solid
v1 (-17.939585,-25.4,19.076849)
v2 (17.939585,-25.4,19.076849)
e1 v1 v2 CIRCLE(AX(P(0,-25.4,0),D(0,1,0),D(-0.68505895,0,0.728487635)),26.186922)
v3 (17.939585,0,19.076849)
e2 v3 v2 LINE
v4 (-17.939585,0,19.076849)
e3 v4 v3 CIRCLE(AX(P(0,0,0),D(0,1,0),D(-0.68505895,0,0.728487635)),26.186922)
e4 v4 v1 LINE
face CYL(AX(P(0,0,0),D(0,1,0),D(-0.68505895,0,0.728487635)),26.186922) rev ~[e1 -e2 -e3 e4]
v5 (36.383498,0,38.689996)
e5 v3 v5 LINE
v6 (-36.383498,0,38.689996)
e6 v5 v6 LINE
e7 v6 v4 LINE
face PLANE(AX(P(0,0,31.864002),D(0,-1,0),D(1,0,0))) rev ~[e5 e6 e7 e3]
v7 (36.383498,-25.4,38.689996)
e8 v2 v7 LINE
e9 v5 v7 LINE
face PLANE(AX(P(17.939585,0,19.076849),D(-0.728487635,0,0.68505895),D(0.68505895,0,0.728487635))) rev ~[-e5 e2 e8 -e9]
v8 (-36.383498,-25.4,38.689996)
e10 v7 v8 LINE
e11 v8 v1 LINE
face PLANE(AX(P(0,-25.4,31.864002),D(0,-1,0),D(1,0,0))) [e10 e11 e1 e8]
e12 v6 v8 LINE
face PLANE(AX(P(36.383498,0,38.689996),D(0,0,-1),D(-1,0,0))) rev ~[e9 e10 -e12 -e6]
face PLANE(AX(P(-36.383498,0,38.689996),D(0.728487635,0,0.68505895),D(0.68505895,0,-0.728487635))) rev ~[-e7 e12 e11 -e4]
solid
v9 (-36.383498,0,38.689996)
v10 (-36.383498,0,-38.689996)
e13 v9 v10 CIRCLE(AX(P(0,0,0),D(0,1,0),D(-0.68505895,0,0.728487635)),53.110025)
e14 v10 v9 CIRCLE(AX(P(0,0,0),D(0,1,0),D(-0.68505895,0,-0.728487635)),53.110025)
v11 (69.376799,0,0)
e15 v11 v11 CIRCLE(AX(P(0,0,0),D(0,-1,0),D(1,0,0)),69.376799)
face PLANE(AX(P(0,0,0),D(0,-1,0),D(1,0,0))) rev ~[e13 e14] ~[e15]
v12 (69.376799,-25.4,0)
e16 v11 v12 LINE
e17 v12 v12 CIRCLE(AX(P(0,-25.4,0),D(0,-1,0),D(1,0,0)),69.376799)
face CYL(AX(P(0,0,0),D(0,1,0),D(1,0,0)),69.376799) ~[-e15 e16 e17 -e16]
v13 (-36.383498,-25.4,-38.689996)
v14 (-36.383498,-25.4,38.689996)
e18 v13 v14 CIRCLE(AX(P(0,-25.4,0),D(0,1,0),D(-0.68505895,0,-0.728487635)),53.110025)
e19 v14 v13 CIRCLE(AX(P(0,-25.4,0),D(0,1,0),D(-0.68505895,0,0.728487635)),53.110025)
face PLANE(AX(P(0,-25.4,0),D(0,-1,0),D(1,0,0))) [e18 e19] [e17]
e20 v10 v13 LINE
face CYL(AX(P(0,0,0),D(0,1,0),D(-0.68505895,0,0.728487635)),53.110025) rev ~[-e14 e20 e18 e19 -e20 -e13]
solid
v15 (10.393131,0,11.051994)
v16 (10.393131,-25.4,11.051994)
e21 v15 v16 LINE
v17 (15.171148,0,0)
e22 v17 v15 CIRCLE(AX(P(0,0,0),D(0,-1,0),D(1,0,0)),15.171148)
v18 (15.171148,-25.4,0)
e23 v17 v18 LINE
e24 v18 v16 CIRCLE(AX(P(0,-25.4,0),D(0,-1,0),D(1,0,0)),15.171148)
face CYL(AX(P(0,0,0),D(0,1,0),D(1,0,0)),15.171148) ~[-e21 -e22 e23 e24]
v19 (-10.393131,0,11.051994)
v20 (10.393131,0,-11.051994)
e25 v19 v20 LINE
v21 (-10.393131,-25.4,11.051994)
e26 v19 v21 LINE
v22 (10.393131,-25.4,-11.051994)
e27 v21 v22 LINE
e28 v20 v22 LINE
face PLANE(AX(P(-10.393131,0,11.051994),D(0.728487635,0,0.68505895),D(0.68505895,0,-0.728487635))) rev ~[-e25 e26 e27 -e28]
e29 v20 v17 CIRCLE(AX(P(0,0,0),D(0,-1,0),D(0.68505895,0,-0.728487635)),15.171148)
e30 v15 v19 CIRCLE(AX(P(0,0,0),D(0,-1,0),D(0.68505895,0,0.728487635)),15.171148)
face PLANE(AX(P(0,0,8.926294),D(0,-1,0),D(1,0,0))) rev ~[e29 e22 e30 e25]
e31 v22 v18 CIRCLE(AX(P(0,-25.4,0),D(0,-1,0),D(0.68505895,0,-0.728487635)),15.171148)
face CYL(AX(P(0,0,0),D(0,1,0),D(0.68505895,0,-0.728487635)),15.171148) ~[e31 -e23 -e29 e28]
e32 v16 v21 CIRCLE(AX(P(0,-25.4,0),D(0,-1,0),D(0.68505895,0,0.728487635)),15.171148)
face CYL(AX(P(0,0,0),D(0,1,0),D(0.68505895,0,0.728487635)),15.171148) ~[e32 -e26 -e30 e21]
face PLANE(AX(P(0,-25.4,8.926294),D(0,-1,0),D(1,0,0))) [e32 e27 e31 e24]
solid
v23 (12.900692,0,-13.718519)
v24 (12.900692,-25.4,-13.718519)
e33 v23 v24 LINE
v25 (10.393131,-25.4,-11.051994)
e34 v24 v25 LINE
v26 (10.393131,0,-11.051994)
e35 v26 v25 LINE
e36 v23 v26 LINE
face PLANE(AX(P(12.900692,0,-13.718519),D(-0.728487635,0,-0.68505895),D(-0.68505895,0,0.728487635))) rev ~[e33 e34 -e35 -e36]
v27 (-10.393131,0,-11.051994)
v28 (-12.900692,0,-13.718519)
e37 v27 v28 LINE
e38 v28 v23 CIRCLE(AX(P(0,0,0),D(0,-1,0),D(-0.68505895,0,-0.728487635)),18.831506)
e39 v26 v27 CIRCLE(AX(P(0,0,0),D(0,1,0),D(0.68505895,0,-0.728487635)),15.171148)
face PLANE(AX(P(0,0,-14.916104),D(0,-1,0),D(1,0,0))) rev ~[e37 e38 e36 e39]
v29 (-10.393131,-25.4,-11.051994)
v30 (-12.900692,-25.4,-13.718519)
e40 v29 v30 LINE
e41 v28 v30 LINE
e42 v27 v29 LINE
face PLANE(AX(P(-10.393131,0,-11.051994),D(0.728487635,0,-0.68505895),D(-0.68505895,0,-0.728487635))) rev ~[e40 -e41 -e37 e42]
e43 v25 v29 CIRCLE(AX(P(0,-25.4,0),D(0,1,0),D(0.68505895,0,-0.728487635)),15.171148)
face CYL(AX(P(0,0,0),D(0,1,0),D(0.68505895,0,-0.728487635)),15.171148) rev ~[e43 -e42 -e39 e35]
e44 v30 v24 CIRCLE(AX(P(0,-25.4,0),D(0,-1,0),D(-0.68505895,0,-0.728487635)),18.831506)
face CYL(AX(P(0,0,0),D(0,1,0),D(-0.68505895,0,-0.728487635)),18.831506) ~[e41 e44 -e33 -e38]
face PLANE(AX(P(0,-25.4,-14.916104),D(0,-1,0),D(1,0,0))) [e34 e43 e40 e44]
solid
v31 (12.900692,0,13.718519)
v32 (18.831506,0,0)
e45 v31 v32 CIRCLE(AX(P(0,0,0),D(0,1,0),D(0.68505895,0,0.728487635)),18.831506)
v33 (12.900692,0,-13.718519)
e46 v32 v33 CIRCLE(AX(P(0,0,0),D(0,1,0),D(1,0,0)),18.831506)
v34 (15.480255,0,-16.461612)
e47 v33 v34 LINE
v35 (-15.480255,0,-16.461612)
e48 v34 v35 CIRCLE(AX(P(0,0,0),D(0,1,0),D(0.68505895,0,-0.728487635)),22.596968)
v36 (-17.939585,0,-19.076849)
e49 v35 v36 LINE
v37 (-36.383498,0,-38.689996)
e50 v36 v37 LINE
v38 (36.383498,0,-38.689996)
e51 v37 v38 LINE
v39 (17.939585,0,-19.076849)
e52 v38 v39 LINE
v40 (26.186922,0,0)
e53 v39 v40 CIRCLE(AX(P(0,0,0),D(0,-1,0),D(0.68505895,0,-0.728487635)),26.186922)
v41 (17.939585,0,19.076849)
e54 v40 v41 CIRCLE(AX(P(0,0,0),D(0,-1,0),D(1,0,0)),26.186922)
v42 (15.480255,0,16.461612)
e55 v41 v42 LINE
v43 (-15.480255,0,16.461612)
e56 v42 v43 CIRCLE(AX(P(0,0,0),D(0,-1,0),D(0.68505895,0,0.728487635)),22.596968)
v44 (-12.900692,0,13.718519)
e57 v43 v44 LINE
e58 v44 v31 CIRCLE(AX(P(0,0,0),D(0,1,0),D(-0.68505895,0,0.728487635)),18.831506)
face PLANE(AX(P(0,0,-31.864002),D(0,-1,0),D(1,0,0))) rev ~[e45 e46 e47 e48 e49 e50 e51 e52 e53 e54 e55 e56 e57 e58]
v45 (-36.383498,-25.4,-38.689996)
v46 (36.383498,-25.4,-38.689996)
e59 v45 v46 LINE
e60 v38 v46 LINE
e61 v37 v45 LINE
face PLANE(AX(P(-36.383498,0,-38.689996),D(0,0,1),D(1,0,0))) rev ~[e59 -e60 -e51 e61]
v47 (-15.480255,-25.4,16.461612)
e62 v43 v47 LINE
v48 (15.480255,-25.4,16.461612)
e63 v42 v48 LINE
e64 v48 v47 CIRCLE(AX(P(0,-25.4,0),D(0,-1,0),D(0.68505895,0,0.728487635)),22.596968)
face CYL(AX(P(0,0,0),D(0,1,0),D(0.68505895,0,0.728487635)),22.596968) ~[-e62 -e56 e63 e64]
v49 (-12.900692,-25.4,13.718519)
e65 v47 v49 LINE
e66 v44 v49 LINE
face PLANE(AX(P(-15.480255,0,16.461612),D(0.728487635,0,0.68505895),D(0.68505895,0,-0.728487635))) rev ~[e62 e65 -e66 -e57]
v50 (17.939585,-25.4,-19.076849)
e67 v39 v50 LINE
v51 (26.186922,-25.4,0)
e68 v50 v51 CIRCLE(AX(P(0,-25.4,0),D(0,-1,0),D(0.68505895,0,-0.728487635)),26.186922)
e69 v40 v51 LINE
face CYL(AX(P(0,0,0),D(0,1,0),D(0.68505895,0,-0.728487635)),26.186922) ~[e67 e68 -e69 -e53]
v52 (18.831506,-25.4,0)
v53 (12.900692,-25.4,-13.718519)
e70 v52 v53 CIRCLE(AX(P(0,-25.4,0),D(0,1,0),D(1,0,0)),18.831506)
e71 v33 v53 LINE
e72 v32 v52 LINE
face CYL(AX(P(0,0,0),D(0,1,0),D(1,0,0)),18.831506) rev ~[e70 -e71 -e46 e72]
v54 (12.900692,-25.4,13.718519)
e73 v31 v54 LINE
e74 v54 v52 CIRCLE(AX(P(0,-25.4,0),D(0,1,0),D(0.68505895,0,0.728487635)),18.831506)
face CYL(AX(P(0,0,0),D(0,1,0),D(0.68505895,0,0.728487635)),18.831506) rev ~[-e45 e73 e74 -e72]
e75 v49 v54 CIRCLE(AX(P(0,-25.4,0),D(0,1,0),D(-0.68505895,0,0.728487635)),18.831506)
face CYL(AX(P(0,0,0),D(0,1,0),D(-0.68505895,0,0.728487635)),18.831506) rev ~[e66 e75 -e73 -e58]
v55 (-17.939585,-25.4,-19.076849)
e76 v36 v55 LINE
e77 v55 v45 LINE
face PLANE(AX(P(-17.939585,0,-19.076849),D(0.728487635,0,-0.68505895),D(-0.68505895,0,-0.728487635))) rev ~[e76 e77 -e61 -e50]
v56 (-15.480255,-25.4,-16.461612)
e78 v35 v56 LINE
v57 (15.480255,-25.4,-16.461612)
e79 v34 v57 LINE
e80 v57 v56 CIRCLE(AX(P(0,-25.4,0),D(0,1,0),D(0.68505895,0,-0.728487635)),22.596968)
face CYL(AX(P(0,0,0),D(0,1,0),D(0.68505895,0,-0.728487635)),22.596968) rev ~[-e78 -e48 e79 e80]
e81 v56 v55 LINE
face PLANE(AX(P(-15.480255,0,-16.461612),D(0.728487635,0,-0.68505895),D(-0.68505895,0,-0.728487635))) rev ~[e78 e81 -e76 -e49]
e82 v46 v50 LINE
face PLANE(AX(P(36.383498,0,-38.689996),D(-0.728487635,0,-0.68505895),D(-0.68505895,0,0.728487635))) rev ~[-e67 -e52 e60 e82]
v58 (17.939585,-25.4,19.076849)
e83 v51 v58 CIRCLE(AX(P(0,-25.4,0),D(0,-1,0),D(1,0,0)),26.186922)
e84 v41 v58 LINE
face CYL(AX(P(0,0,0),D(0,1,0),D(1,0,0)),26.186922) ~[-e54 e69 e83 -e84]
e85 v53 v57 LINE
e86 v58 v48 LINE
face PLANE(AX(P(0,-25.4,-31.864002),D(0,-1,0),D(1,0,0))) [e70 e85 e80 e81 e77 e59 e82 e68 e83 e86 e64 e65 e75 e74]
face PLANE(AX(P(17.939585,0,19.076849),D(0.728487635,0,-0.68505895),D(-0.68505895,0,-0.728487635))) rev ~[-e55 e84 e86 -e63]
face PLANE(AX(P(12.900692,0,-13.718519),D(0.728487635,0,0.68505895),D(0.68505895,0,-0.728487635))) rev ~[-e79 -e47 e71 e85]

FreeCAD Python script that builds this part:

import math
import FreeCAD as App
import Part
import Sketcher
from FreeCAD import Vector
Q = App.Units.Quantity

doc = App.newDocument("Part")
body = doc.addObject("PartDesign::Body", "Body")

# Sketch on XZ plane
sketch1 = doc.addObject("Sketcher::SketchObject", "Sketch")
body.addObject(sketch1)
sketch1.AttachmentSupport = (doc.XZ_Plane, [""])
sketch1.MapMode = "FlatFace"
sketch1.addGeometry([
    Part.Circle(Vector(0, 0, 0), Vector(0, 0, 1), 69),
    Part.ArcOfCircle(Part.Circle(Vector(0, 0, 0), Vector(0, 0, 1), 53), math.radians(-133), math.radians(133)),
    Part.ArcOfCircle(Part.Circle(Vector(0, 0, 0), Vector(0, 0, 1), 53), math.radians(133), math.radians(227)),
], False)
sketch1.addConstraint([
    Sketcher.Constraint("Tangent", 1, 1, 2, 2),
    Sketcher.Constraint("Coincident", 2, 1, 1, 2),
    Sketcher.Constraint("Coincident", 0, 3, -1, 1),
    Sketcher.Constraint("Coincident", 1, 3, -1, 1),
    Sketcher.Constraint("Vertical", 1, 1, 2, 1),
    Sketcher.Constraint("Diameter", 0, Q("138.753599 mm")),
    Sketcher.Constraint("Radius", 1, Q("53.110025 mm")),
    Sketcher.Constraint("DistanceX", 1, 1, -1, 1, Q("36.383498 mm")),
])
pad1 = doc.addObject("PartDesign::Pad", "Pad")
body.addObject(pad1)
pad1.Profile = sketch1
pad1.Length = Q("1 in")
body2 = doc.addObject("PartDesign::Body", "Body001")

# Sketch on XZ plane
sketch2 = doc.addObject("Sketcher::SketchObject", "Sketch001")
body2.addObject(sketch2)
sketch2.AttachmentSupport = (doc.getObject("XZ_Plane001"), [""])
sketch2.MapMode = "FlatFace"
sketch2.addGeometry([
    Part.LineSegment(Vector(-36.4, -38.7, 0), Vector(36.4, -38.7, 0)),  # 0
    Part.LineSegment(Vector(36.4, -38.7, 0), Vector(17.9, -19.1, 0)),  # 1
    Part.ArcOfCircle(Part.Circle(Vector(0, 0, 0), Vector(0, 0, 1), 26.2), math.radians(-47), math.radians(0)),  # 2
    Part.ArcOfCircle(Part.Circle(Vector(0, 0, 0), Vector(0, 0, 1), 26.2), math.radians(0), math.radians(47)),  # 3
    Part.LineSegment(Vector(17.9, 19.1, 0), Vector(15.5, 16.5, 0)),  # 4
    Part.ArcOfCircle(Part.Circle(Vector(0, 0, 0), Vector(0, 0, 1), 22.6), math.radians(47), math.radians(133)),  # 5
    Part.LineSegment(Vector(-15.5, 16.5, 0), Vector(-12.9, 13.7, 0)),  # 6
    Part.ArcOfCircle(Part.Circle(Vector(0, 0, 0), Vector(0, 0, 1), 18.8), math.radians(47), math.radians(133)),  # 7
    Part.ArcOfCircle(Part.Circle(Vector(0, 0, 0), Vector(0, 0, 1), 18.8), math.radians(0), math.radians(47)),  # 8
    Part.ArcOfCircle(Part.Circle(Vector(0, 0, 0), Vector(0, 0, 1), 18.8), math.radians(-47), math.radians(0)),  # 9
    Part.LineSegment(Vector(12.9, -13.7, 0), Vector(15.5, -16.5, 0)),  # 10
    Part.ArcOfCircle(Part.Circle(Vector(0, 0, 0), Vector(0, 0, 1), 22.6), math.radians(-133), math.radians(-47)),  # 11
    Part.LineSegment(Vector(-15.5, -16.5, 0), Vector(-17.9, -19.1, 0)),  # 12
    Part.LineSegment(Vector(-17.9, -19.1, 0), Vector(-36.4, -38.7, 0)),  # 13
], False)
sketch2.addConstraint([
    Sketcher.Constraint("Coincident", 0, 2, 1, 1),
    Sketcher.Constraint("Coincident", 1, 2, 2, 1),
    Sketcher.Constraint("Tangent", 2, 2, 3, 1),
    Sketcher.Constraint("Coincident", 3, 2, 4, 1),
    Sketcher.Constraint("Coincident", 4, 2, 5, 1),
    Sketcher.Constraint("Coincident", 5, 2, 6, 1),
    Sketcher.Constraint("Coincident", 6, 2, 7, 2),
    Sketcher.Constraint("Tangent", 7, 1, 8, 2),
    Sketcher.Constraint("Tangent", 8, 1, 9, 2),
    Sketcher.Constraint("Coincident", 9, 1, 10, 1),
    Sketcher.Constraint("Coincident", 10, 2, 11, 2),
    Sketcher.Constraint("Coincident", 11, 1, 12, 1),
    Sketcher.Constraint("Coincident", 12, 2, 13, 1),
    Sketcher.Constraint("Coincident", 13, 2, 0, 1),
    Sketcher.Constraint("Horizontal", 0),
    Sketcher.Constraint("Coincident", 2, 3, -1, 1),
    Sketcher.Constraint("Coincident", 5, 3, -1, 1),
    Sketcher.Constraint("Coincident", 7, 3, -1, 1),
    Sketcher.Constraint("Coincident", 9, 3, -1, 1),
    Sketcher.Constraint("Coincident", 11, 3, -1, 1),
    Sketcher.Constraint("Equal", 2, 3),
    Sketcher.Constraint("Equal", 5, 11),
    Sketcher.Constraint("Symmetric", 3, 2, 12, 2, -1, 1),
    Sketcher.Constraint("PointOnObject", 2, 2, -1),
    Sketcher.Constraint("PointOnObject", 8, 1, -1),
    Sketcher.Constraint("Parallel", 1, 6),
    Sketcher.Constraint("Parallel", 6, 10),
    Sketcher.Constraint("Parallel", 4, 12),
    Sketcher.Constraint("Parallel", 12, 13),
    Sketcher.Constraint("Horizontal", 4, 2, 5, 2),
    Sketcher.Constraint("Horizontal", 6, 2, 7, 1),
    Sketcher.Constraint("Horizontal", 10, 2, 11, 1),
    Sketcher.Constraint("Horizontal", 1, 2, 12, 2),
    Sketcher.Constraint("Equal", 1, 13),
    Sketcher.Constraint("Radius", 2, Q("26.186922 mm")),
    Sketcher.Constraint("Radius", 5, Q("22.596968 mm")),
    Sketcher.Constraint("Radius", 7, Q("18.831506 mm")),
    Sketcher.Constraint("DistanceX", 0, 1, 0, 2, Q("72.766995 mm")),
    Sketcher.Constraint("DistanceY", 1, 2, -1, 1, Q("19.076849 mm")),
    Sketcher.Constraint("DistanceY", -1, 1, 4, 2, Q("16.461612 mm")),
])
pad2 = doc.addObject("PartDesign::Pad", "Pad001")
body2.addObject(pad2)
pad2.Profile = sketch2
pad2.Length = Q("1 in")
body3 = doc.addObject("PartDesign::Body", "Body002")

# Sketch on XZ plane
sketch3 = doc.addObject("Sketcher::SketchObject", "Sketch002")
body3.addObject(sketch3)
sketch3.AttachmentSupport = (doc.getObject("XZ_Plane002"), [""])
sketch3.MapMode = "FlatFace"
sketch3.addGeometry([
    Part.LineSegment(Vector(18, 19, 0), Vector(36, 39, 0)),
    Part.LineSegment(Vector(36, 39, 0), Vector(-36, 39, 0)),
    Part.LineSegment(Vector(-36, 39, 0), Vector(-18, 19, 0)),
    Part.ArcOfCircle(Part.Circle(Vector(0, 0, 0), Vector(0, 0, 1), 26), math.radians(47), math.radians(133)),
], False)
sketch3.addConstraint([
    Sketcher.Constraint("Coincident", 0, 2, 1, 1),
    Sketcher.Constraint("Coincident", 1, 2, 2, 1),
    Sketcher.Constraint("Coincident", 2, 2, 3, 2),
    Sketcher.Constraint("Coincident", 3, 1, 0, 1),
    Sketcher.Constraint("Horizontal", 1),
    Sketcher.Constraint("Coincident", 3, 3, -1, 1),
    Sketcher.Constraint("Horizontal", 2, 2, 3, 1),
    Sketcher.Constraint("Equal", 0, 2),
    Sketcher.Constraint("Radius", 3, Q("26.186922 mm")),
    Sketcher.Constraint("DistanceX", 1, 2, 1, 1, Q("72.766995 mm")),
    Sketcher.Constraint("DistanceY", -1, 1, 2, 2, Q("19.076849 mm")),
    Sketcher.Constraint("Distance", 0, Q("26.923103 mm")),
])
pad3 = doc.addObject("PartDesign::Pad", "Pad002")
body3.addObject(pad3)
pad3.Profile = sketch3
pad3.Length = Q("1 in")
body4 = doc.addObject("PartDesign::Body", "Body003")

# Sketch on XZ plane
sketch4 = doc.addObject("Sketcher::SketchObject", "Sketch003")
body4.addObject(sketch4)
sketch4.AttachmentSupport = (doc.getObject("XZ_Plane003"), [""])
sketch4.MapMode = "FlatFace"
sketch4.addGeometry([
    Part.ArcOfCircle(Part.Circle(Vector(0, 0, 0), Vector(0, 0, 1), 15), math.radians(47), math.radians(133)),
    Part.LineSegment(Vector(-10, 11, 0), Vector(10, -11, 0)),
    Part.ArcOfCircle(Part.Circle(Vector(0, 0, 0), Vector(0, 0, 1), 15), math.radians(-47), math.radians(0)),
    Part.ArcOfCircle(Part.Circle(Vector(0, 0, 0), Vector(0, 0, 1), 15), math.radians(0), math.radians(47)),
], False)
sketch4.addConstraint([
    Sketcher.Constraint("Coincident", 0, 2, 1, 1),
    Sketcher.Constraint("Coincident", 1, 2, 2, 1),
    Sketcher.Constraint("Tangent", 2, 2, 3, 1),
    Sketcher.Constraint("Tangent", 3, 2, 0, 1),
    Sketcher.Constraint("Coincident", 0, 3, -1, 1),
    Sketcher.Constraint("Coincident", 2, 3, -1, 1),
    Sketcher.Constraint("PointOnObject", 2, 2, -1),
    Sketcher.Constraint("Horizontal", 0, 2, 3, 2),
    Sketcher.Constraint("Vertical", 1, 2, 3, 2),
    Sketcher.Constraint("Radius", 0, Q("15.171148 mm")),
    Sketcher.Constraint("DistanceX", 0, 2, -1, 1, Q("10.393131 mm")),
])
pad4 = doc.addObject("PartDesign::Pad", "Pad003")
body4.addObject(pad4)
pad4.Profile = sketch4
pad4.Length = Q("1 in")
body5 = doc.addObject("PartDesign::Body", "Body004")

# Sketch on XZ plane
sketch5 = doc.addObject("Sketcher::SketchObject", "Sketch004")
body5.addObject(sketch5)
sketch5.AttachmentSupport = (doc.getObject("XZ_Plane004"), [""])
sketch5.MapMode = "FlatFace"
sketch5.addGeometry([
    Part.ArcOfCircle(Part.Circle(Vector(0, 0, 0), Vector(0, 0, 1), 18.8), math.radians(-133), math.radians(-47)),
    Part.LineSegment(Vector(12.9, -13.7, 0), Vector(10.4, -11.1, 0)),
    Part.ArcOfCircle(Part.Circle(Vector(0, 0, 0), Vector(0, 0, 1), 15.2), math.radians(-133), math.radians(-47)),
    Part.LineSegment(Vector(-10.4, -11.1, 0), Vector(-12.9, -13.7, 0)),
], False)
sketch5.addConstraint([
    Sketcher.Constraint("Coincident", 0, 2, 1, 1),
    Sketcher.Constraint("Coincident", 1, 2, 2, 2),
    Sketcher.Constraint("Coincident", 2, 1, 3, 1),
    Sketcher.Constraint("Coincident", 3, 2, 0, 1),
    Sketcher.Constraint("Coincident", 0, 3, -1, 1),
    Sketcher.Constraint("Coincident", 2, 3, -1, 1),
    Sketcher.Constraint("Horizontal", 1, 2, 2, 1),
    Sketcher.Constraint("Horizontal", 0, 2, 3, 2),
    Sketcher.Constraint("Radius", 2, Q("15.171148 mm")),
    Sketcher.Constraint("Radius", 0, Q("18.831506 mm")),
    Sketcher.Constraint("DistanceX", -1, 1, 0, 2, Q("12.900692 mm")),
    Sketcher.Constraint("DistanceX", -1, 1, 1, 2, Q("10.393131 mm")),
])
pad5 = doc.addObject("PartDesign::Pad", "Pad004")
body5.addObject(pad5)
pad5.Profile = sketch5
pad5.Length = Q("1 in")

doc.recompute()
